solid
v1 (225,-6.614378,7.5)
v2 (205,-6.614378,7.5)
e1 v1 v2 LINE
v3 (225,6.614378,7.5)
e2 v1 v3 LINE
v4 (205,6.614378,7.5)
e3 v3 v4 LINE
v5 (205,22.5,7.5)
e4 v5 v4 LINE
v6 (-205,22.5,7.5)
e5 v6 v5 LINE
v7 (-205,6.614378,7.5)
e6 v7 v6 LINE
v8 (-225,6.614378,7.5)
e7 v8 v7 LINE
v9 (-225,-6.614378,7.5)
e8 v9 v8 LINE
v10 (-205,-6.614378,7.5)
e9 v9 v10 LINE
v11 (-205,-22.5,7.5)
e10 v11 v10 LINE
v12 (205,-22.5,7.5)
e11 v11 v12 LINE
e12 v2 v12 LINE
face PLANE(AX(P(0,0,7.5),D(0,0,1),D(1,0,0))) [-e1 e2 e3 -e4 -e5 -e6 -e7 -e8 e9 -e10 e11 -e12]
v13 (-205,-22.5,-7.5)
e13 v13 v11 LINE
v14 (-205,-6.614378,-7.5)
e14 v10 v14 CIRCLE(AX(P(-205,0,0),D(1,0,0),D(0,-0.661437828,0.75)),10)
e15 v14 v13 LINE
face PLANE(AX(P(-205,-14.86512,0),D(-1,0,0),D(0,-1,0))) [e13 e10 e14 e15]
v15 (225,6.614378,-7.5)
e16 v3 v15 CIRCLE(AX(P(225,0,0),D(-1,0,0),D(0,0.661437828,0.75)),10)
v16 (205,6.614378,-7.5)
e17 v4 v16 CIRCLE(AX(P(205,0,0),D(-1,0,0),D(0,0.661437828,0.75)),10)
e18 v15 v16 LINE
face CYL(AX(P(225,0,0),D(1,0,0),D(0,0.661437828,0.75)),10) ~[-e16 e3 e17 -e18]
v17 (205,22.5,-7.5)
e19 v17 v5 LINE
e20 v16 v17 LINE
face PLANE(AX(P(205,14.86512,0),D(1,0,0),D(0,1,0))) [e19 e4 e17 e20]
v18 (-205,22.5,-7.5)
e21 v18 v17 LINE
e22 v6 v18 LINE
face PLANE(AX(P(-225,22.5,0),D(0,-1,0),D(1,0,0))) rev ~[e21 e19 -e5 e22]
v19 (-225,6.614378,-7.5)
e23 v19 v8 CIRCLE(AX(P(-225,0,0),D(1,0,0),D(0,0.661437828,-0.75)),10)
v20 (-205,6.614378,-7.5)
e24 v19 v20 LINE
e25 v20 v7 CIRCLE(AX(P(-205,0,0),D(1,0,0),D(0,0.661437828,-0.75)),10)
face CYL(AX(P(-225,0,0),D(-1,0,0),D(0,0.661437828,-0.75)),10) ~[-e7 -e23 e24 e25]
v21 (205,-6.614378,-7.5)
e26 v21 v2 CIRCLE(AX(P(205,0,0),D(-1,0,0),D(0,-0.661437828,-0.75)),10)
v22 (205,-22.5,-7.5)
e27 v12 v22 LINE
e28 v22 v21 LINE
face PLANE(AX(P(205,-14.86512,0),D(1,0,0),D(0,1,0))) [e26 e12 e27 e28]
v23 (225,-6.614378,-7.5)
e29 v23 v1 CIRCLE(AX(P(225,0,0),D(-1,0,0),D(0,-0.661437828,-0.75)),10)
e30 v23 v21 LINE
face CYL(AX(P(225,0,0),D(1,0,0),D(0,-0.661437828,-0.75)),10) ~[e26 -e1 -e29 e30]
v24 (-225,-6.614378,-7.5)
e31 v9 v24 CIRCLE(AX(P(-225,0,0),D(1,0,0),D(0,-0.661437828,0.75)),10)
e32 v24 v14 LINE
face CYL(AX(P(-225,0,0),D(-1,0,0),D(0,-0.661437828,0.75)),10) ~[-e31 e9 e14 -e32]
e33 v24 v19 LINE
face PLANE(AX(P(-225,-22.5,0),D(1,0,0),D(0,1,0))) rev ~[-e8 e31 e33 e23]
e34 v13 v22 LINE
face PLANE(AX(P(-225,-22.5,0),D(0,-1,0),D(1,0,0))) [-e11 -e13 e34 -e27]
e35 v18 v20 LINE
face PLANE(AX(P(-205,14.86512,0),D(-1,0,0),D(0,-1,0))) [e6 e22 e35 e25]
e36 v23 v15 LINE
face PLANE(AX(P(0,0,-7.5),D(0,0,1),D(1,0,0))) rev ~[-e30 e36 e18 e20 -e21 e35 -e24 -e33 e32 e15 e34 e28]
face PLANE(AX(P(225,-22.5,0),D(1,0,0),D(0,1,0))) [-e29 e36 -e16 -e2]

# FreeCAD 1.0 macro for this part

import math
import FreeCAD as App
import Part
import Sketcher
Q = App.Units.Quantity


def add_polygon(sketch, points):
    """Adds a closed chain of lines whose ends are joined by coincident constraints."""
    first, n = sketch.GeometryCount, len(points)
    for a, b in zip(points, points[1:] + points[:1]):
        sketch.addGeometry(Part.LineSegment(App.Vector(*a, 0), App.Vector(*b, 0)), False)
    for i in range(n):
        sketch.addConstraint(Sketcher.Constraint("Coincident", first + i, 2, first + (i + 1) % n, 1))

doc = App.newDocument("Part")
params = doc.addObject("Spreadsheet::Sheet", "Params")
for row, (alias, value) in enumerate([
    ("sketch1_width", "450 mm"),
    ("sketch1_height", "45 mm"),
    ("pad1_length", "15 mm"),
    ("sketch2_radius", "10 mm"),
    ("sketch2_height", "15 mm"),
    ("pocket1_length", "20 mm"),
    ("sketch3_radius", "10 mm"),
    ("sketch3_height", "15 mm"),
    ("pocket2_length", "20 mm"),
], start=1):
    params.set(f"A{row}", alias)
    params.set(f"B{row}", "=" + value)
    params.setAlias(f"B{row}", alias)

body = doc.addObject("PartDesign::Body", "Body")

# Sketch on XY plane
sketch1 = doc.addObject("Sketcher::SketchObject", "Sketch")
body.addObject(sketch1)
sketch1.AttachmentSupport = (doc.XY_Plane, [""])
sketch1.MapMode = "FlatFace"
add_polygon(sketch1, [(-225, 22), (-225, -22), (225, -22), (225, 22)])  # lines 0-3
sketch1.addConstraint([
    Sketcher.Constraint("Vertical", 0),
    Sketcher.Constraint("Horizontal", 1),
    Sketcher.Constraint("Vertical", 2),
    Sketcher.Constraint("Horizontal", 3),
    Sketcher.Constraint("Symmetric", 0, 2, 2, 2, -1, 1),
    Sketcher.Constraint("DistanceX", 1, 1, 1, 2, Q("450 mm")),
    Sketcher.Constraint("DistanceY", 0, 2, 0, 1, Q("45 mm")),
])
sketch1.setExpression("Constraints[9]", "Params.sketch1_width")
sketch1.setExpression("Constraints[10]", "Params.sketch1_height")
pad1 = doc.addObject("PartDesign::Pad", "Pad")
body.addObject(pad1)
pad1.Profile = sketch1
pad1.setExpression("Length", "Params.pad1_length")
pad1.Midplane = True

# Sketch on YZ plane
sketch2 = doc.addObject("Sketcher::SketchObject", "Sketch001")
body.addObject(sketch2)
sketch2.AttachmentSupport = (doc.YZ_Plane, [""])
sketch2.MapMode = "FlatFace"
sketch2.AttachmentOffset = App.Placement(App.Vector(0, 0, 225), App.Rotation())
sketch2.addGeometry([
    Part.LineSegment(App.Vector(22, 8, 0), App.Vector(7, 8, 0)),  # 0
    Part.ArcOfCircle(Part.Circle(App.Vector(0, 0, 0), App.Vector(0, 0, 1), 10), math.radians(-49), math.radians(49)),  # 1
    Part.LineSegment(App.Vector(7, -8, 0), App.Vector(22, -8, 0)),  # 2
    Part.LineSegment(App.Vector(22, -8, 0), App.Vector(22, 8, 0)),  # 3
    Part.ArcOfCircle(Part.Circle(App.Vector(0, 0, 0), App.Vector(0, 0, 1), 10), math.radians(131), math.radians(229)),  # 4
    Part.LineSegment(App.Vector(-7, 8, 0), App.Vector(-22, 8, 0)),  # 5
    Part.LineSegment(App.Vector(-22, 8, 0), App.Vector(-22, -8, 0)),  # 6
    Part.LineSegment(App.Vector(-22, -8, 0), App.Vector(-7, -8, 0)),  # 7
], False)
sketch2.addConstraint([
    Sketcher.Constraint("Coincident", 0, 2, 1, 2),
    Sketcher.Constraint("Coincident", 1, 1, 2, 1),
    Sketcher.Constraint("Coincident", 2, 2, 3, 1),
    Sketcher.Constraint("Coincident", 3, 2, 0, 1),
    Sketcher.Constraint("Coincident", 4, 1, 5, 1),
    Sketcher.Constraint("Coincident", 5, 2, 6, 1),
    Sketcher.Constraint("Coincident", 6, 2, 7, 1),
    Sketcher.Constraint("Coincident", 7, 2, 4, 2),
    Sketcher.Constraint("Horizontal", 0),
    Sketcher.Constraint("Horizontal", 2),
    Sketcher.Constraint("Vertical", 3),
    Sketcher.Constraint("Horizontal", 5),
    Sketcher.Constraint("Vertical", 6),
    Sketcher.Constraint("Horizontal", 7),
    Sketcher.Constraint("Coincident", 1, 3, -1, 1),
    Sketcher.Constraint("Coincident", 4, 3, -1, 1),
    Sketcher.Constraint("Equal", 1, 4),
    Sketcher.Constraint("Symmetric", 2, 2, 5, 2, -1, 1),
    Sketcher.Constraint("Horizontal", 3, 2, 4, 1),
    Sketcher.Constraint("Horizontal", 2, 2, 6, 2),
    Sketcher.Constraint("Radius", 1, Q("10 mm")),
    Sketcher.Constraint("DistanceY", 3, 1, 3, 2, Q("15 mm")),
    Sketcher.Constraint("DistanceX", -1, 1, 2, 2, Q("22.5 mm")),
])
sketch2.setExpression("Constraints[20]", "Params.sketch2_radius")
sketch2.setExpression("Constraints[21]", "Params.sketch2_height")
pocket1 = doc.addObject("PartDesign::Pocket", "Pocket")
body.addObject(pocket1)
pocket1.Profile = sketch2
pocket1.setExpression("Length", "Params.pocket1_length")

# Sketch on YZ plane
sketch3 = doc.addObject("Sketcher::SketchObject", "Sketch002")
body.addObject(sketch3)
sketch3.AttachmentSupport = (doc.YZ_Plane, [""])
sketch3.MapMode = "FlatFace"
sketch3.AttachmentOffset = App.Placement(App.Vector(0, 0, -225), App.Rotation())
sketch3.addGeometry([
    Part.LineSegment(App.Vector(-22, 8, 0), App.Vector(-7, 8, 0)),  # 0
    Part.ArcOfCircle(Part.Circle(App.Vector(0, 0, 0), App.Vector(0, 0, 1), 10), math.radians(131), math.radians(229)),  # 1
    Part.LineSegment(App.Vector(-7, -8, 0), App.Vector(-22, -8, 0)),  # 2
    Part.LineSegment(App.Vector(-22, -8, 0), App.Vector(-22, 8, 0)),  # 3
    Part.ArcOfCircle(Part.Circle(App.Vector(0, 0, 0), App.Vector(0, 0, 1), 10), math.radians(-49), math.radians(49)),  # 4
    Part.LineSegment(App.Vector(7, 8, 0), App.Vector(22, 8, 0)),  # 5
    Part.LineSegment(App.Vector(22, 8, 0), App.Vector(22, -8, 0)),  # 6
    Part.LineSegment(App.Vector(22, -8, 0), App.Vector(7, -8, 0)),  # 7
], False)
sketch3.addConstraint([
    Sketcher.Constraint("Coincident", 0, 2, 1, 1),
    Sketcher.Constraint("Coincident", 1, 2, 2, 1),
    Sketcher.Constraint("Coincident", 2, 2, 3, 1),
    Sketcher.Constraint("Coincident", 3, 2, 0, 1),
    Sketcher.Constraint("Coincident", 4, 2, 5, 1),
    Sketcher.Constraint("Coincident", 5, 2, 6, 1),
    Sketcher.Constraint("Coincident", 6, 2, 7, 1),
    Sketcher.Constraint("Coincident", 7, 2, 4, 1),
    Sketcher.Constraint("Horizontal", 0),
    Sketcher.Constraint("Horizontal", 2),
    Sketcher.Constraint("Vertical", 3),
    Sketcher.Constraint("Horizontal", 5),
    Sketcher.Constraint("Vertical", 6),
    Sketcher.Constraint("Horizontal", 7),
    Sketcher.Constraint("Coincident", 1, 3, -1, 1),
    Sketcher.Constraint("Coincident", 4, 3, -1, 1),
    Sketcher.Constraint("Equal", 1, 4),
    Sketcher.Constraint("Symmetric", 2, 2, 5, 2, -1, 1),
    Sketcher.Constraint("Horizontal", 3, 2, 4, 2),
    Sketcher.Constraint("Horizontal", 2, 2, 6, 2),
    Sketcher.Constraint("Radius", 1, Q("10 mm")),
    Sketcher.Constraint("DistanceY", 3, 1, 3, 2, Q("15 mm")),
    Sketcher.Constraint("DistanceX", 2, 2, -1, 1, Q("22.5 mm")),
])
sketch3.setExpression("Constraints[20]", "Params.sketch3_radius")
sketch3.setExpression("Constraints[21]", "Params.sketch3_height")
pocket2 = doc.addObject("PartDesign::Pocket", "Pocket001")
body.addObject(pocket2)
pocket2.Profile = sketch3
pocket2.setExpression("Length", "Params.pocket2_length")
pocket2.Reversed = True

doc.recompute()
